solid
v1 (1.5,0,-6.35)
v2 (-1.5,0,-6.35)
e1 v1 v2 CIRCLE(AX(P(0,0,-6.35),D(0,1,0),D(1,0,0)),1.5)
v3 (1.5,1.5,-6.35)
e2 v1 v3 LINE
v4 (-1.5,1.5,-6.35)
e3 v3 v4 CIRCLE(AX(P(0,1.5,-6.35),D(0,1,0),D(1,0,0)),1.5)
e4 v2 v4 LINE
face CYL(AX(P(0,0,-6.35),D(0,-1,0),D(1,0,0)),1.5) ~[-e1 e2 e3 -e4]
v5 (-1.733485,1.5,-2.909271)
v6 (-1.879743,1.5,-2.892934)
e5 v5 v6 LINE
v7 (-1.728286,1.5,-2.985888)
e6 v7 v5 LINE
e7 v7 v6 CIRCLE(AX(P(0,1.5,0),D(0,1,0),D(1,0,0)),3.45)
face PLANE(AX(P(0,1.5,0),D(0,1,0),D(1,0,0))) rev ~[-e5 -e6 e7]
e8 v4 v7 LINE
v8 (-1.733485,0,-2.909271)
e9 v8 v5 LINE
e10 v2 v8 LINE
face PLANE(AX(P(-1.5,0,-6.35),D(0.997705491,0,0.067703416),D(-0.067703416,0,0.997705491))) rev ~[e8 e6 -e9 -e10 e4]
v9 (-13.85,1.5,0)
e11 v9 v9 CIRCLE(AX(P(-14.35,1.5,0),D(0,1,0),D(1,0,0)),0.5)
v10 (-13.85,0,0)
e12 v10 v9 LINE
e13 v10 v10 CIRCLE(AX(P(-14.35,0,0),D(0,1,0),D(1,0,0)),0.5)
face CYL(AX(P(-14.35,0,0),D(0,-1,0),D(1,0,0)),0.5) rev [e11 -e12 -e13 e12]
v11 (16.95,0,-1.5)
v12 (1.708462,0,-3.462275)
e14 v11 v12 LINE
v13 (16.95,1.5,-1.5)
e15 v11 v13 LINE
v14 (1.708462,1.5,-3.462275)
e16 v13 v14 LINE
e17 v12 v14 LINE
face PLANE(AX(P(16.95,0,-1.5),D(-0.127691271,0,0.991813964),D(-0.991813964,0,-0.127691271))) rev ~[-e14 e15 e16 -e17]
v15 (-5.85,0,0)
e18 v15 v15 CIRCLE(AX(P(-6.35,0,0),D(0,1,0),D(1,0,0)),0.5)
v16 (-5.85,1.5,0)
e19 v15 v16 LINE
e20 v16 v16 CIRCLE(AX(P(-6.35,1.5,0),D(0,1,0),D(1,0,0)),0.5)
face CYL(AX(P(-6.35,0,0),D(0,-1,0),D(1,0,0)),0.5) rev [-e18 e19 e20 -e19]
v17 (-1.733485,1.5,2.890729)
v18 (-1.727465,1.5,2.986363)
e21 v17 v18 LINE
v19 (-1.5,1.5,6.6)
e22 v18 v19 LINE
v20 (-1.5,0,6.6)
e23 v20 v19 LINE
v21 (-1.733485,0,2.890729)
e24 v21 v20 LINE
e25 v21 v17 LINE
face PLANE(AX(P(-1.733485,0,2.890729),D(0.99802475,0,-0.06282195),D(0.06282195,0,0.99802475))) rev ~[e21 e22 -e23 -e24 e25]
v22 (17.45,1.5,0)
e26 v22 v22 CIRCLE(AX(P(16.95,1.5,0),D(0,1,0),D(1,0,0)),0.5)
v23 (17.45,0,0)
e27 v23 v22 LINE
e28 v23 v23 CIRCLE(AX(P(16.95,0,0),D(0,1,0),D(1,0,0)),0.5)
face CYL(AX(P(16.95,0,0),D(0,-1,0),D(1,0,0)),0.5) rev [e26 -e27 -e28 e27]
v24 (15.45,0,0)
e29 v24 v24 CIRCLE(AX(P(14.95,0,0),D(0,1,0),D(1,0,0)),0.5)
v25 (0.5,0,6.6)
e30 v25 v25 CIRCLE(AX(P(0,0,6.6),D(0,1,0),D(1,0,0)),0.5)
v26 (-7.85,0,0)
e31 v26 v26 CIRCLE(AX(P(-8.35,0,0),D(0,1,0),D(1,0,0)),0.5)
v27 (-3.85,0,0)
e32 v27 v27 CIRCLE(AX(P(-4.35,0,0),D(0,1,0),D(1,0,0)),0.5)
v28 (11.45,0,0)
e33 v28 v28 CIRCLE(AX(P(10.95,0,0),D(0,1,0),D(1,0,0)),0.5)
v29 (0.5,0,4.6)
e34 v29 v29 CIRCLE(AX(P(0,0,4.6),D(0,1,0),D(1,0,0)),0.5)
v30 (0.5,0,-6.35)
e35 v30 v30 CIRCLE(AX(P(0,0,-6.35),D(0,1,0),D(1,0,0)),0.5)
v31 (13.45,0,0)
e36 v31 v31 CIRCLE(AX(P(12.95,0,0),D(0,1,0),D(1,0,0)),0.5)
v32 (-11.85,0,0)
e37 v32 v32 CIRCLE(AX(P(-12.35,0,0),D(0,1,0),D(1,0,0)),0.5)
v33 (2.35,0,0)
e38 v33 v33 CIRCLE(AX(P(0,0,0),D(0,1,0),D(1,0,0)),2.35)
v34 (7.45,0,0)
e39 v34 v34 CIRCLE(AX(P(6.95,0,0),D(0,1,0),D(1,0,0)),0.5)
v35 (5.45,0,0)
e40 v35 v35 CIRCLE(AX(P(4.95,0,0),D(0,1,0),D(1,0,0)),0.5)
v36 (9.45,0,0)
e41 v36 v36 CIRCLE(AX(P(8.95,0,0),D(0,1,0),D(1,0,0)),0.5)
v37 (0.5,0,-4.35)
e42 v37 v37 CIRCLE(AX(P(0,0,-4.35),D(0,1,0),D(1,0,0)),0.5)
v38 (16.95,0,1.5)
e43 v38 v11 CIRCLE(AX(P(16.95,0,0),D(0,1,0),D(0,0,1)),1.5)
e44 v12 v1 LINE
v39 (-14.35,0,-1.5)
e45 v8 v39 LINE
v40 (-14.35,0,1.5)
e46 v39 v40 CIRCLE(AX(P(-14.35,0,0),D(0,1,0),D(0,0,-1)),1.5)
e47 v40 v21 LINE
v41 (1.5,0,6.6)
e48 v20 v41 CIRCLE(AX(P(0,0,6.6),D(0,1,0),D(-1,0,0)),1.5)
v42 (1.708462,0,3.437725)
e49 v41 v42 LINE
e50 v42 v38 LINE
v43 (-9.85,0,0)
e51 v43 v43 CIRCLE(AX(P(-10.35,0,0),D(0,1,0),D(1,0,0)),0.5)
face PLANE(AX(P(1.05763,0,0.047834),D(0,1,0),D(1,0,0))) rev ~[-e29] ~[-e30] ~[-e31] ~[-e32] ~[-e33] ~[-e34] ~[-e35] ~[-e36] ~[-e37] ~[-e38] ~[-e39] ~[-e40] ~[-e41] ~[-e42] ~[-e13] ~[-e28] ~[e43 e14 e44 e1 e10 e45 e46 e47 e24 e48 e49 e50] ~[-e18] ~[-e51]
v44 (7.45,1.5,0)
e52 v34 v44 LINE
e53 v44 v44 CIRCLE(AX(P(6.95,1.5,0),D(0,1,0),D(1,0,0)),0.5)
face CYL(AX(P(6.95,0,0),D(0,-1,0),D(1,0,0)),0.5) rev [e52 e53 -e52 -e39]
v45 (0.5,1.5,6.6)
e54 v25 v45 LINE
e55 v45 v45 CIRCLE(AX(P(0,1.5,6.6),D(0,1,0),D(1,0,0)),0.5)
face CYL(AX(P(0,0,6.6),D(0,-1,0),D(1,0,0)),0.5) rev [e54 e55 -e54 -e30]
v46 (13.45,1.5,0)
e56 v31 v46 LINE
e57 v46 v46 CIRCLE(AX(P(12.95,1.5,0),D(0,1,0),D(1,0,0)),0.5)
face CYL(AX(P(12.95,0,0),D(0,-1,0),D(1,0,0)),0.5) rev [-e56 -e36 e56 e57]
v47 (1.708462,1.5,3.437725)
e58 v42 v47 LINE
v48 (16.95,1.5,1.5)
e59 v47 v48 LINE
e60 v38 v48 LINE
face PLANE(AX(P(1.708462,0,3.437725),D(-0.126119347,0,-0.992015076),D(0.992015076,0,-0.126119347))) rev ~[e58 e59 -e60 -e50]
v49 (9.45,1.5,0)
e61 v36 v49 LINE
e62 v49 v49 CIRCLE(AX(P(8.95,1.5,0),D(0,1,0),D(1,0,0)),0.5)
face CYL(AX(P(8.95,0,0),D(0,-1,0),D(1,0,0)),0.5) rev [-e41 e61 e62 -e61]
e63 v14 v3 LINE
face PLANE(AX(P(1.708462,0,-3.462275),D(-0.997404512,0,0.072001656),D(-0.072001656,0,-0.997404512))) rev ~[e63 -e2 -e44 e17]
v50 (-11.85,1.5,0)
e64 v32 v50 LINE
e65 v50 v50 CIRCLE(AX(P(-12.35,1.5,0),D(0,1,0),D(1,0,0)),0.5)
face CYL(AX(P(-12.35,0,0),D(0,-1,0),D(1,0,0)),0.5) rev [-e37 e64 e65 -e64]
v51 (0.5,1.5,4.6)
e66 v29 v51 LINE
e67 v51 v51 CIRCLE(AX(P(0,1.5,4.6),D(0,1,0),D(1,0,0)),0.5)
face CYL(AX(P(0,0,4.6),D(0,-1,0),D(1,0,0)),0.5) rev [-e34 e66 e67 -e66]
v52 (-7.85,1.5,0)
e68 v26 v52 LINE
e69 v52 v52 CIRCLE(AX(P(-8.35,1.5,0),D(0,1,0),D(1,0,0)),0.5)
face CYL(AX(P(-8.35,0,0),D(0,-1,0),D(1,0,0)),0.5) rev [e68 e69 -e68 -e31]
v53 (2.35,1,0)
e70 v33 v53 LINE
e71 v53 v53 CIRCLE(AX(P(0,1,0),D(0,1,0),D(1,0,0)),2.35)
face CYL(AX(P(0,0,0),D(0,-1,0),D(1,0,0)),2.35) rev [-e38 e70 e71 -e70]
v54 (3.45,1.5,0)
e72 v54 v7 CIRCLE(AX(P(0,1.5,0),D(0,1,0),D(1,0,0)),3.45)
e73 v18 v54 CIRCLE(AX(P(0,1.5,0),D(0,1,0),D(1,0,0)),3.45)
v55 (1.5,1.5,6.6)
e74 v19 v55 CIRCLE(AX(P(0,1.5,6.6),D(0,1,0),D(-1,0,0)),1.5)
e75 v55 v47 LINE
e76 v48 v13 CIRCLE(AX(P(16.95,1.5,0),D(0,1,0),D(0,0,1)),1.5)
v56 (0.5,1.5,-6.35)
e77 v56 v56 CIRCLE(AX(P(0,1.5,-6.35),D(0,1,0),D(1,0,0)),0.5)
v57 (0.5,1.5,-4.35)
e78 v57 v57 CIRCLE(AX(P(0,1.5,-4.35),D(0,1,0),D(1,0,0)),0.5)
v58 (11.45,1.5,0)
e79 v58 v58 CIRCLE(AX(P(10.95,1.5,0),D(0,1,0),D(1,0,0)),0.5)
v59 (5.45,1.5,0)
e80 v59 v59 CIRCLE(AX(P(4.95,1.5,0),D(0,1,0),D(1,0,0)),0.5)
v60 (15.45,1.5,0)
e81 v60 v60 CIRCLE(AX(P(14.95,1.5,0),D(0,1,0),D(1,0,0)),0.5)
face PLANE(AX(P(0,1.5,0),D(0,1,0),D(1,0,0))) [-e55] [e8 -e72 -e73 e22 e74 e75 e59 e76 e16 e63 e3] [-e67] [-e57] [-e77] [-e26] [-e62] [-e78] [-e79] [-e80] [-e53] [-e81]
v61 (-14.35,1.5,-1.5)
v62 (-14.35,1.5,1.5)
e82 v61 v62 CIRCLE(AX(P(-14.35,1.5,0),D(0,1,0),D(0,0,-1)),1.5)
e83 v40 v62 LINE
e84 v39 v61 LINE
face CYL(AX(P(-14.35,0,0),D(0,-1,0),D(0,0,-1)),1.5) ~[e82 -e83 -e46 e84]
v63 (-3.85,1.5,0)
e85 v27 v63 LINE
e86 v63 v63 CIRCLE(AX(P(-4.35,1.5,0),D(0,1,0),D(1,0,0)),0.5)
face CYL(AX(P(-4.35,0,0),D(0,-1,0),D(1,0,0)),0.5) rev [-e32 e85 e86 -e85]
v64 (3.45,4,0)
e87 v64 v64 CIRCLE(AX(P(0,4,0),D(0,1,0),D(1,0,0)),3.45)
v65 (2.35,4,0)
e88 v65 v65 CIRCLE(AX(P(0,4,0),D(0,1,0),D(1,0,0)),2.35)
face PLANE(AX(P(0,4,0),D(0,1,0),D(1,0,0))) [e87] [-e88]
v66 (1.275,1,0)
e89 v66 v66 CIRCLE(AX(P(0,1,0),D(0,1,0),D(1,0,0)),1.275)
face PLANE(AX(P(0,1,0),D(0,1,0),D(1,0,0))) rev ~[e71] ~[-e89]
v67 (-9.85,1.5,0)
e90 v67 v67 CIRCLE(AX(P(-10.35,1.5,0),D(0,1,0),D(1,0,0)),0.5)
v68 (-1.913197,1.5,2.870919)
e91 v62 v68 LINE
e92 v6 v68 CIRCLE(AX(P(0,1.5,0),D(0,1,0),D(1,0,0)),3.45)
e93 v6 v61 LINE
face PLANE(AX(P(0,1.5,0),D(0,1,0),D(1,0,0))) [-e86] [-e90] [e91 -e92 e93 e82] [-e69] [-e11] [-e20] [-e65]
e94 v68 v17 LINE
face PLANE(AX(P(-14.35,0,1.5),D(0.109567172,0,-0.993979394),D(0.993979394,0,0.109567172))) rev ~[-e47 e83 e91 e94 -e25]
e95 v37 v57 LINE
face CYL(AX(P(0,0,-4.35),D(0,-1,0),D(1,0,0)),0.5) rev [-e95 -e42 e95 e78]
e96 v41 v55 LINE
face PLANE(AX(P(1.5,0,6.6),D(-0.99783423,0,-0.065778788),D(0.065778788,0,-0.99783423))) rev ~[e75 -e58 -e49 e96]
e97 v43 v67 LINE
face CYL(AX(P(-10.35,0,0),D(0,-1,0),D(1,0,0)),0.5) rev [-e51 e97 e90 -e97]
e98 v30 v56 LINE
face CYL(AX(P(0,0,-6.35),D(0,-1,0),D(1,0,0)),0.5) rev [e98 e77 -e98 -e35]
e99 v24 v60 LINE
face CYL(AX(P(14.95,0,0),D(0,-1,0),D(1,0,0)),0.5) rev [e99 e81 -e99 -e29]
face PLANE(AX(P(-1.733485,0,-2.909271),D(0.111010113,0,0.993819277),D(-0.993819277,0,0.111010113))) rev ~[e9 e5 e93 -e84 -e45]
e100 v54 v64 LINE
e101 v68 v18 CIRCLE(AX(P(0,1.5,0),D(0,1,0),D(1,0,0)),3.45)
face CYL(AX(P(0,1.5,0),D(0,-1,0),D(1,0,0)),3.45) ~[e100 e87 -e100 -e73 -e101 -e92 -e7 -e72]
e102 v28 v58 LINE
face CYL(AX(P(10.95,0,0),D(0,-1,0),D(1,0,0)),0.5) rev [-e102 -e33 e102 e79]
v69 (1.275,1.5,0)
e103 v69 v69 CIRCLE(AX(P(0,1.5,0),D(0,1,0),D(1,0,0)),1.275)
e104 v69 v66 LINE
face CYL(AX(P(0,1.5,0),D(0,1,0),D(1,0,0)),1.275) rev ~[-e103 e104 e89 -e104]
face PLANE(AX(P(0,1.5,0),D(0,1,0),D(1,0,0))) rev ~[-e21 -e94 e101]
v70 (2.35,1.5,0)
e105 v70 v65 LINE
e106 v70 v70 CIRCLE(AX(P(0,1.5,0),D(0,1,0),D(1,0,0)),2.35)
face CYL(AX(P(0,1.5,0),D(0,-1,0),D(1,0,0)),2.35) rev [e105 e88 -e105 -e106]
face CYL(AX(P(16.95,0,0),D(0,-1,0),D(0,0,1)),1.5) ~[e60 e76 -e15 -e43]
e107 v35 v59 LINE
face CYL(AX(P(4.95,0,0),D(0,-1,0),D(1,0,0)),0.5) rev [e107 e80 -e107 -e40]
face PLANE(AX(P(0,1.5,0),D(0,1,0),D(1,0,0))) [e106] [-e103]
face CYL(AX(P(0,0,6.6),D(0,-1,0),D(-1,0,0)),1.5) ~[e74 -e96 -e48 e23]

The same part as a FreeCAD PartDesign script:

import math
import FreeCAD as App
import Part
import Sketcher
from FreeCAD import Vector
Q = App.Units.Quantity

doc = App.newDocument("Part")
body = doc.addObject("PartDesign::Body", "Body")

# Sketch on XZ plane
sketch1 = body.newObject("Sketcher::SketchObject", "Sketch")
sketch1.AttachmentSupport = (doc.getObject("XZ_Plane"), [""])
sketch1.MapMode = "FlatFace"
sketch1.addGeometry([
    Part.LineSegment(Vector(-1.733485, 2.890729, 0), Vector(-1.5, 6.6, 0)),  # 0
    Part.ArcOfCircle(Part.Circle(Vector(0, 6.6, 0), Vector(0, 0, 1), 1.5), math.radians(0), math.radians(180)),  # 1
    Part.LineSegment(Vector(1.5, 6.6, 0), Vector(1.708462, 3.437725, 0)),  # 2
    Part.LineSegment(Vector(1.708462, 3.437725, 0), Vector(16.95, 1.5, 0)),  # 3
    Part.ArcOfCircle(Part.Circle(Vector(16.95, 0, 0), Vector(0, 0, 1), 1.5), math.radians(-90), math.radians(90)),  # 4
    Part.LineSegment(Vector(16.95, -1.5, 0), Vector(1.708462, -3.462275, 0)),  # 5
    Part.LineSegment(Vector(1.708462, -3.462275, 0), Vector(1.5, -6.35, 0)),  # 6
    Part.ArcOfCircle(Part.Circle(Vector(0, -6.35, 0), Vector(0, 0, 1), 1.5), math.radians(180), math.radians(360)),  # 7
    Part.LineSegment(Vector(-1.5, -6.35, 0), Vector(-1.733485, -2.909271, 0)),  # 8
    Part.LineSegment(Vector(-1.733485, -2.909271, 0), Vector(-14.35, -1.5, 0)),  # 9
    Part.ArcOfCircle(Part.Circle(Vector(-14.35, 0, 0), Vector(0, 0, 1), 1.5), math.radians(90), math.radians(270)),  # 10
    Part.LineSegment(Vector(-14.35, 1.5, 0), Vector(-1.733485, 2.890729, 0)),  # 11
    Part.Circle(Vector(0, 6.6, 0), Vector(0, 0, 1), 0.5),  # 12
    Part.Circle(Vector(0, 4.6, 0), Vector(0, 0, 1), 0.5),  # 13
    Part.Circle(Vector(-14.35, 0, 0), Vector(0, 0, 1), 0.5),  # 14
    Part.Circle(Vector(-12.35, 0, 0), Vector(0, 0, 1), 0.5),  # 15
    Part.Circle(Vector(-10.35, 0, 0), Vector(0, 0, 1), 0.5),  # 16
    Part.Circle(Vector(-8.35, 0, 0), Vector(0, 0, 1), 0.5),  # 17
    Part.Circle(Vector(-6.35, 0, 0), Vector(0, 0, 1), 0.5),  # 18
    Part.Circle(Vector(-4.35, 0, 0), Vector(0, 0, 1), 0.5),  # 19
    Part.Circle(Vector(0, 0, 0), Vector(0, 0, 1), 2.35),  # 20
    Part.Circle(Vector(0, -4.35, 0), Vector(0, 0, 1), 0.5),  # 21
    Part.Circle(Vector(0, -6.35, 0), Vector(0, 0, 1), 0.5),  # 22
    Part.Circle(Vector(4.95, 0, 0), Vector(0, 0, 1), 0.5),  # 23
    Part.Circle(Vector(6.95, 0, 0), Vector(0, 0, 1), 0.5),  # 24
    Part.Circle(Vector(8.95, 0, 0), Vector(0, 0, 1), 0.5),  # 25
    Part.Circle(Vector(10.95, 0, 0), Vector(0, 0, 1), 0.5),  # 26
    Part.Circle(Vector(12.95, 0, 0), Vector(0, 0, 1), 0.5),  # 27
    Part.Circle(Vector(14.95, 0, 0), Vector(0, 0, 1), 0.5),  # 28
    Part.Circle(Vector(16.95, 0, 0), Vector(0, 0, 1), 0.5),  # 29
], False)
sketch1.addConstraint([
    Sketcher.Constraint("Coincident", 0, 2, 1, 2),
    Sketcher.Constraint("Coincident", 1, 1, 2, 1),
    Sketcher.Constraint("Coincident", 2, 2, 3, 1),
    Sketcher.Constraint("Coincident", 3, 2, 4, 2),
    Sketcher.Constraint("Coincident", 4, 1, 5, 1),
    Sketcher.Constraint("Coincident", 5, 2, 6, 1),
    Sketcher.Constraint("Coincident", 6, 2, 7, 2),
    Sketcher.Constraint("Coincident", 7, 1, 8, 1),
    Sketcher.Constraint("Coincident", 8, 2, 9, 1),
    Sketcher.Constraint("Coincident", 9, 2, 10, 2),
    Sketcher.Constraint("Coincident", 10, 1, 11, 1),
    Sketcher.Constraint("Coincident", 11, 2, 0, 1),
    Sketcher.Constraint("Coincident", 20, 3, -1, 1),
    Sketcher.Constraint("Coincident", 12, 3, 1, 3),
    Sketcher.Constraint("Coincident", 14, 3, 10, 3),
    Sketcher.Constraint("Coincident", 22, 3, 7, 3),
    Sketcher.Constraint("Coincident", 29, 3, 4, 3),
    Sketcher.Constraint("Equal", 1, 4),
    Sketcher.Constraint("Equal", 4, 7),
    Sketcher.Constraint("Equal", 7, 10),
    Sketcher.Constraint("Equal", 12, 13),
    Sketcher.Constraint("Equal", 13, 14),
    Sketcher.Constraint("Equal", 14, 15),
    Sketcher.Constraint("Equal", 15, 16),
    Sketcher.Constraint("Equal", 16, 17),
    Sketcher.Constraint("Equal", 17, 18),
    Sketcher.Constraint("Equal", 18, 19),
    Sketcher.Constraint("Equal", 19, 21),
    Sketcher.Constraint("Equal", 21, 22),
    Sketcher.Constraint("Equal", 22, 23),
    Sketcher.Constraint("Equal", 23, 24),
    Sketcher.Constraint("Equal", 24, 25),
    Sketcher.Constraint("Equal", 25, 26),
    Sketcher.Constraint("Equal", 26, 27),
    Sketcher.Constraint("Equal", 27, 28),
    Sketcher.Constraint("Equal", 28, 29),
    Sketcher.Constraint("Symmetric", 0, 2, 1, 1, -2),
    Sketcher.Constraint("Symmetric", 6, 2, 7, 1, -2),
    Sketcher.Constraint("Symmetric", 3, 2, 4, 1, -1),
    Sketcher.Constraint("Symmetric", 9, 2, 10, 1, -1),
    Sketcher.Constraint("PointOnObject", 13, 3, -2),
    Sketcher.Constraint("PointOnObject", 15, 3, -1),
    Sketcher.Constraint("PointOnObject", 16, 3, -1),
    Sketcher.Constraint("PointOnObject", 17, 3, -1),
    Sketcher.Constraint("PointOnObject", 18, 3, -1),
    Sketcher.Constraint("PointOnObject", 19, 3, -1),
    Sketcher.Constraint("PointOnObject", 21, 3, -2),
    Sketcher.Constraint("PointOnObject", 23, 3, -1),
    Sketcher.Constraint("PointOnObject", 24, 3, -1),
    Sketcher.Constraint("PointOnObject", 25, 3, -1),
    Sketcher.Constraint("PointOnObject", 26, 3, -1),
    Sketcher.Constraint("PointOnObject", 27, 3, -1),
    Sketcher.Constraint("PointOnObject", 28, 3, -1),
    Sketcher.Constraint("Horizontal", 12, 3, 0, 2),
    Sketcher.Constraint("Horizontal", 22, 3, 6, 2),
    Sketcher.Constraint("Vertical", 29, 3, 3, 2),
    Sketcher.Constraint("Vertical", 2, 2, 5, 2),
    Sketcher.Constraint("Vertical", 14, 3, 9, 2),
    Sketcher.Constraint("Vertical", 8, 2, 11, 2),
    Sketcher.Constraint("Diameter", 12, Q("1 mm")),
    Sketcher.Constraint("Diameter", 20, Q("4.7 mm")),
    Sketcher.Constraint("Radius", 1, Q("1.5 mm")),
    Sketcher.Constraint("DistanceY", 13, 3, 1, 3, Q("2 mm")),
    Sketcher.Constraint("DistanceX", 10, 3, 15, 3, Q("2 mm")),
    Sketcher.Constraint("DistanceX", 15, 3, 16, 3, Q("2 mm")),
    Sketcher.Constraint("DistanceX", 16, 3, 17, 3, Q("2 mm")),
    Sketcher.Constraint("DistanceX", 17, 3, 18, 3, Q("2 mm")),
    Sketcher.Constraint("DistanceX", 18, 3, 19, 3, Q("2 mm")),
    Sketcher.Constraint("DistanceY", 7, 3, 21, 3, Q("2 mm")),
    Sketcher.Constraint("DistanceX", 23, 3, 24, 3, Q("2 mm")),
    Sketcher.Constraint("DistanceX", 24, 3, 25, 3, Q("2 mm")),
    Sketcher.Constraint("DistanceX", 25, 3, 4, 3, Q("8 mm")),
    Sketcher.Constraint("DistanceX", 25, 3, 26, 3, Q("2 mm")),
    Sketcher.Constraint("DistanceX", 26, 3, 27, 3, Q("2 mm")),
    Sketcher.Constraint("DistanceX", 28, 3, 4, 3, Q("2 mm")),
    Sketcher.Constraint("DistanceY", -1, 1, 1, 3, Q("6.6 mm")),
    Sketcher.Constraint("DistanceX", 10, 3, 4, 3, Q("31.3 mm")),
    Sketcher.Constraint("DistanceX", -1, 1, 4, 3, Q("16.95 mm")),
    Sketcher.Constraint("DistanceY", 7, 3, -1, 1, Q("6.35 mm")),
    Sketcher.Constraint("Distance", 2, Q("3.169138 mm")),
    Sketcher.Constraint("Distance", 3, Q("15.36422 mm")),
    Sketcher.Constraint("Distance", 6, Q("2.89524 mm")),
    Sketcher.Constraint("Distance", 8, Q("3.448642 mm")),
    Sketcher.Constraint("Distance", 9, Q("12.694979 mm")),
    Sketcher.Constraint("DistanceY", -1, 1, 11, 2, Q("2.890729 mm")),
])
pad1 = body.newObject("PartDesign::Pad", "Pad")
pad1.Profile = sketch1
pad1.Length = 1.5
pad1.Reversed = True

# Sketch on XZ plane
sketch2 = body.newObject("Sketcher::SketchObject", "Sketch001")
sketch2.AttachmentSupport = (doc.getObject("XZ_Plane"), [""])
sketch2.MapMode = "FlatFace"
sketch2.AttachmentOffset = App.Placement(Vector(0, 0, -1.5), App.Rotation())
sketch2.addGeometry([
    Part.Circle(Vector(0, 0, 0), Vector(0, 0, 1), 2.35),
    Part.Circle(Vector(0, 0, 0), Vector(0, 0, 1), 1.275),
], False)
sketch2.addConstraint([
    Sketcher.Constraint("Coincident", 0, 3, -1, 1),
    Sketcher.Constraint("Coincident", 1, 3, -1, 1),
    Sketcher.Constraint("Diameter", 0, Q("4.7 mm")),
    Sketcher.Constraint("Diameter", 1, Q("2.55 mm")),
])
pad2 = body.newObject("PartDesign::Pad", "Pad001")
pad2.Profile = sketch2
pad2.Length = 0.5

# Sketch on XZ plane
sketch3 = body.newObject("Sketcher::SketchObject", "Sketch002")
sketch3.AttachmentSupport = (doc.getObject("XZ_Plane"), [""])
sketch3.MapMode = "FlatFace"
sketch3.AttachmentOffset = App.Placement(Vector(0, 0, -1.5), App.Rotation())
sketch3.addGeometry([
    Part.Circle(Vector(0, 0, 0), Vector(0, 0, 1), 3.45),
    Part.Circle(Vector(0, 0, 0), Vector(0, 0, 1), 2.35),
], False)
sketch3.addConstraint([
    Sketcher.Constraint("Coincident", 0, 3, -1, 1),
    Sketcher.Constraint("Coincident", 1, 3, -1, 1),
    Sketcher.Constraint("Diameter", 0, Q("6.9 mm")),
    Sketcher.Constraint("Diameter", 1, Q("4.7 mm")),
])
pad3 = body.newObject("PartDesign::Pad", "Pad002")
pad3.Profile = sketch3
pad3.Length = 2.5
pad3.Reversed = True

doc.recompute()
